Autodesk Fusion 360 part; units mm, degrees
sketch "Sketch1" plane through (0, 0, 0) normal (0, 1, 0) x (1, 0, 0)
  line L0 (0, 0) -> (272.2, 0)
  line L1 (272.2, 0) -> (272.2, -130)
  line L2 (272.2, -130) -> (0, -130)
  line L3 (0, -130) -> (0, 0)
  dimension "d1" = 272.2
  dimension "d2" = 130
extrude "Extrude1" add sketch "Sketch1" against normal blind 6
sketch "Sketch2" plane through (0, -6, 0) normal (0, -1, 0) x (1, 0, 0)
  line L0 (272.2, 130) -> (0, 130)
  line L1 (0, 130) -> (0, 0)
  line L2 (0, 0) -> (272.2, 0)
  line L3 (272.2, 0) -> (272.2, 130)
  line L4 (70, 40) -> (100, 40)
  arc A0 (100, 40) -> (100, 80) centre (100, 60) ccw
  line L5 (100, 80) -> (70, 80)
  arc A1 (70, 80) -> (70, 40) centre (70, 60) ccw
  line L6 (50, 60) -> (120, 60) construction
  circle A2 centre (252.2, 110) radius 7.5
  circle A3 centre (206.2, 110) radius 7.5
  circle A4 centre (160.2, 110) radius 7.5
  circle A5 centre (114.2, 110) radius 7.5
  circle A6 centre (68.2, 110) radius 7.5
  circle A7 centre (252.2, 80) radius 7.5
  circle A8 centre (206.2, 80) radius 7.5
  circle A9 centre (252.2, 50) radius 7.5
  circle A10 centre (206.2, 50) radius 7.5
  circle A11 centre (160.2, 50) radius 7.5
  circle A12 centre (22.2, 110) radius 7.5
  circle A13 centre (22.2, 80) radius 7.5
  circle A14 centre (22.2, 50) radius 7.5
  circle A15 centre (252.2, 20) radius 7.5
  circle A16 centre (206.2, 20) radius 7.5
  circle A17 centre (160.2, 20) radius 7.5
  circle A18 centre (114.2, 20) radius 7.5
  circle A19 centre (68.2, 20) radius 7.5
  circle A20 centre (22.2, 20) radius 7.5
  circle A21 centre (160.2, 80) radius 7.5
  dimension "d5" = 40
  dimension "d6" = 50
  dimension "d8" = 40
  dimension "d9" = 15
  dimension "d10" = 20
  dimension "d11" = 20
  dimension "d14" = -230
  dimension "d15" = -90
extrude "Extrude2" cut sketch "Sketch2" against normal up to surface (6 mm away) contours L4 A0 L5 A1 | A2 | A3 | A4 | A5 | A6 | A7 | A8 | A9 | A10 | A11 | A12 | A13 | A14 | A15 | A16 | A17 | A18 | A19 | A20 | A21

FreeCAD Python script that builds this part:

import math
import FreeCAD as App
import Part
import Sketcher

doc = App.newDocument("Part")
params = doc.addObject("Spreadsheet::Sheet", "Params")
for row, (alias, value) in enumerate([
    ("sketch1_height", "130 mm"),
    ("sketch1_width", "272.2 mm"),
    ("pad1_length", "6 mm"),
    ("sketch2_diameter", "15 mm"),
    ("sketch2_radius", "20 mm"),
    ("sketch2_width", "30 mm"),
    ("pocket1_length", "6 mm"),
], start=1):
    params.set(f"A{row}", alias)
    params.set(f"B{row}", "=" + value)
    params.setAlias(f"B{row}", alias)

body = doc.addObject("PartDesign::Body", "Body")

# Sketch on XZ plane
sketch1 = body.newObject("Sketcher::SketchObject", "Sketch")
sketch1.AttachmentSupport = (doc.getObject("XZ_Plane"), [""])
sketch1.MapMode = "FlatFace"
sketch1.addGeometry([
    Part.LineSegment(App.Vector(272, 0, 0), App.Vector(0, 0, 0)),
    Part.LineSegment(App.Vector(0, 0, 0), App.Vector(0, 130, 0)),
    Part.LineSegment(App.Vector(0, 130, 0), App.Vector(272, 130, 0)),
    Part.LineSegment(App.Vector(272, 130, 0), App.Vector(272, 0, 0)),
], False)
sketch1.addConstraint([
    Sketcher.Constraint("Coincident", 0, 2, 1, 1),
    Sketcher.Constraint("Coincident", 1, 2, 2, 1),
    Sketcher.Constraint("Coincident", 2, 2, 3, 1),
    Sketcher.Constraint("Coincident", 3, 2, 0, 1),
    Sketcher.Constraint("Horizontal", 0),
    Sketcher.Constraint("Vertical", 1),
    Sketcher.Constraint("Horizontal", 2),
    Sketcher.Constraint("Vertical", 3),
    Sketcher.Constraint("Coincident", 0, 2, -1, 1),
    Sketcher.Constraint("DistanceY", 1, 1, 1, 2, 130.0),
    Sketcher.Constraint("DistanceX", 0, 2, 0, 1, 272.2),
])
sketch1.setExpression("Constraints[9]", "Params.sketch1_height")
sketch1.setExpression("Constraints[10]", "Params.sketch1_width")
pad1 = body.newObject("PartDesign::Pad", "Pad")
pad1.Profile = sketch1
pad1.setExpression("Length", "Params.pad1_length")

# Sketch on XZ plane
sketch2 = body.newObject("Sketcher::SketchObject", "Sketch001")
sketch2.AttachmentSupport = (doc.getObject("XZ_Plane"), [""])
sketch2.MapMode = "FlatFace"
sketch2.AttachmentOffset = App.Placement(App.Vector(0, 0, 6), App.Rotation())
sketch2.addGeometry([
    Part.ArcOfCircle(Part.Circle(App.Vector(70, 60, 0), App.Vector(0, 0, 1), 20), math.radians(90), math.radians(270)),  # 0
    Part.LineSegment(App.Vector(70, 40, 0), App.Vector(100, 40, 0)),  # 1
    Part.ArcOfCircle(Part.Circle(App.Vector(100, 60, 0), App.Vector(0, 0, 1), 20), math.radians(-90), math.radians(90)),  # 2
    Part.LineSegment(App.Vector(100, 80, 0), App.Vector(70, 80, 0)),  # 3
    Part.Circle(App.Vector(252, 110, 0), App.Vector(0, 0, 1), 8),  # 4
    Part.Circle(App.Vector(206, 110, 0), App.Vector(0, 0, 1), 8),  # 5
    Part.Circle(App.Vector(160, 110, 0), App.Vector(0, 0, 1), 8),  # 6
    Part.Circle(App.Vector(114, 110, 0), App.Vector(0, 0, 1), 8),  # 7
    Part.Circle(App.Vector(68, 110, 0), App.Vector(0, 0, 1), 8),  # 8
    Part.Circle(App.Vector(252, 80, 0), App.Vector(0, 0, 1), 8),  # 9
    Part.Circle(App.Vector(206, 80, 0), App.Vector(0, 0, 1), 8),  # 10
    Part.Circle(App.Vector(252, 50, 0), App.Vector(0, 0, 1), 8),  # 11
    Part.Circle(App.Vector(206, 50, 0), App.Vector(0, 0, 1), 8),  # 12
    Part.Circle(App.Vector(160, 50, 0), App.Vector(0, 0, 1), 8),  # 13
    Part.Circle(App.Vector(22, 110, 0), App.Vector(0, 0, 1), 8),  # 14
    Part.Circle(App.Vector(22, 80, 0), App.Vector(0, 0, 1), 8),  # 15
    Part.Circle(App.Vector(22, 50, 0), App.Vector(0, 0, 1), 8),  # 16
    Part.Circle(App.Vector(252, 20, 0), App.Vector(0, 0, 1), 8),  # 17
    Part.Circle(App.Vector(206, 20, 0), App.Vector(0, 0, 1), 8),  # 18
    Part.Circle(App.Vector(160, 20, 0), App.Vector(0, 0, 1), 8),  # 19
    Part.Circle(App.Vector(114, 20, 0), App.Vector(0, 0, 1), 8),  # 20
    Part.Circle(App.Vector(68, 20, 0), App.Vector(0, 0, 1), 8),  # 21
    Part.Circle(App.Vector(22, 20, 0), App.Vector(0, 0, 1), 8),  # 22
    Part.Circle(App.Vector(160, 80, 0), App.Vector(0, 0, 1), 8),  # 23
], False)
sketch2.addConstraint([
    Sketcher.Constraint("Tangent", 0, 2, 1, 1),
    Sketcher.Constraint("Tangent", 1, 2, 2, 1),
    Sketcher.Constraint("Tangent", 2, 2, 3, 1),
    Sketcher.Constraint("Tangent", 3, 2, 0, 1),
    Sketcher.Constraint("Horizontal", 1),
    Sketcher.Constraint("Horizontal", 3),
    Sketcher.Constraint("Equal", 4, 5),
    Sketcher.Constraint("Equal", 5, 6),
    Sketcher.Constraint("Equal", 6, 7),
    Sketcher.Constraint("Equal", 7, 8),
    Sketcher.Constraint("Equal", 8, 9),
    Sketcher.Constraint("Equal", 9, 10),
    Sketcher.Constraint("Equal", 10, 11),
    Sketcher.Constraint("Equal", 11, 12),
    Sketcher.Constraint("Equal", 12, 13),
    Sketcher.Constraint("Equal", 13, 14),
    Sketcher.Constraint("Equal", 14, 15),
    Sketcher.Constraint("Equal", 15, 16),
    Sketcher.Constraint("Equal", 16, 17),
    Sketcher.Constraint("Equal", 17, 18),
    Sketcher.Constraint("Equal", 18, 19),
    Sketcher.Constraint("Equal", 19, 20),
    Sketcher.Constraint("Equal", 20, 21),
    Sketcher.Constraint("Equal", 21, 22),
    Sketcher.Constraint("Equal", 22, 23),
    Sketcher.Constraint("Horizontal", 4, 3, 5, 3),
    Sketcher.Constraint("Horizontal", 5, 3, 6, 3),
    Sketcher.Constraint("Horizontal", 6, 3, 7, 3),
    Sketcher.Constraint("Horizontal", 7, 3, 8, 3),
    Sketcher.Constraint("Horizontal", 9, 3, 10, 3),
    Sketcher.Constraint("Horizontal", 11, 3, 12, 3),
    Sketcher.Constraint("Horizontal", 12, 3, 13, 3),
    Sketcher.Constraint("Horizontal", 8, 3, 14, 3),
    Sketcher.Constraint("Horizontal", 10, 3, 15, 3),
    Sketcher.Constraint("Horizontal", 13, 3, 16, 3),
    Sketcher.Constraint("Horizontal", 17, 3, 18, 3),
    Sketcher.Constraint("Horizontal", 18, 3, 19, 3),
    Sketcher.Constraint("Horizontal", 19, 3, 20, 3),
    Sketcher.Constraint("Horizontal", 20, 3, 21, 3),
    Sketcher.Constraint("Horizontal", 21, 3, 22, 3),
    Sketcher.Constraint("Horizontal", 15, 3, 23, 3),
    Sketcher.Constraint("Horizontal", 23, 3, 2, 2),
    Sketcher.Constraint("Vertical", 4, 3, 9, 3),
    Sketcher.Constraint("Vertical", 5, 3, 10, 3),
    Sketcher.Constraint("Vertical", 9, 3, 11, 3),
    Sketcher.Constraint("Vertical", 10, 3, 12, 3),
    Sketcher.Constraint("Vertical", 6, 3, 13, 3),
    Sketcher.Constraint("Vertical", 14, 3, 15, 3),
    Sketcher.Constraint("Vertical", 15, 3, 16, 3),
    Sketcher.Constraint("Vertical", 11, 3, 17, 3),
    Sketcher.Constraint("Vertical", 12, 3, 18, 3),
    Sketcher.Constraint("Vertical", 13, 3, 19, 3),
    Sketcher.Constraint("Vertical", 7, 3, 20, 3),
    Sketcher.Constraint("Vertical", 8, 3, 21, 3),
    Sketcher.Constraint("Vertical", 16, 3, 22, 3),
    Sketcher.Constraint("Vertical", 19, 3, 23, 3),
    Sketcher.Constraint("Diameter", 4, 15.0),
    Sketcher.Constraint("Radius", 0, 20.0),
    Sketcher.Constraint("DistanceY", -1, 1, 11, 3, 50.0),
    Sketcher.Constraint("DistanceY", -1, 1, 17, 3, 20.0),
    Sketcher.Constraint("DistanceY", -1, 1, 0, 2, 40.0),
    Sketcher.Constraint("DistanceY", 2, 3, 4, 3, 50.0),
    Sketcher.Constraint("DistanceX", 1, 1, 1, 2, 30.0),
    Sketcher.Constraint("DistanceX", -1, 1, 0, 3, 70.0),
    Sketcher.Constraint("DistanceX", 5, 3, 4, 3, 46.0),
    Sketcher.Constraint("DistanceX", 6, 3, 5, 3, 46.0),
    Sketcher.Constraint("DistanceX", 7, 3, 6, 3, 46.0),
    Sketcher.Constraint("DistanceX", 8, 3, 7, 3, 46.0),
    Sketcher.Constraint("DistanceX", 14, 3, 8, 3, 46.0),
    Sketcher.Constraint("DistanceX", -1, 1, 4, 3, 252.2),
])
sketch2.setExpression("Constraints[56]", "Params.sketch2_diameter")
sketch2.setExpression("Constraints[57]", "Params.sketch2_radius")
sketch2.setExpression("Constraints[62]", "Params.sketch2_width")
pocket1 = body.newObject("PartDesign::Pocket", "Pocket")
pocket1.Profile = sketch2
pocket1.setExpression("Length", "Params.pocket1_length")

doc.recompute()
